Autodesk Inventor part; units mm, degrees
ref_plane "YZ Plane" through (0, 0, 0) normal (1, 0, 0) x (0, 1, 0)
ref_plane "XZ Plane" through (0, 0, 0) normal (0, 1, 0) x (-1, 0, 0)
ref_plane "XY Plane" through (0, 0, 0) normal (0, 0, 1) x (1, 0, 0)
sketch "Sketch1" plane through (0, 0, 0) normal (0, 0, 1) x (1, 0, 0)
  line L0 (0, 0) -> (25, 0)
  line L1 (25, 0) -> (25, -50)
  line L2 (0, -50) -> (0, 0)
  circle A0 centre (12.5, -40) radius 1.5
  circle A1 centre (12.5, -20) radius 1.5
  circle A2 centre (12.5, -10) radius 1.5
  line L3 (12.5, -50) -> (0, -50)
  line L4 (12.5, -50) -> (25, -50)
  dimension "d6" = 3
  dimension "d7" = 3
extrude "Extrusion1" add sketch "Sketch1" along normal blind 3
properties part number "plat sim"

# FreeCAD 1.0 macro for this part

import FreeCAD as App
import Part
import Sketcher
from FreeCAD import Vector
Q = App.Units.Quantity


def add_polygon(sketch, points):
    """Adds a closed chain of lines whose ends are joined by coincident constraints."""
    first, n = sketch.GeometryCount, len(points)
    for a, b in zip(points, points[1:] + points[:1]):
        sketch.addGeometry(Part.LineSegment(App.Vector(*a, 0), App.Vector(*b, 0)), False)
    for i in range(n):
        sketch.addConstraint(Sketcher.Constraint("Coincident", first + i, 2, first + (i + 1) % n, 1))

doc = App.newDocument("Part")
body = doc.addObject("PartDesign::Body", "Body")

# Sketch on XY plane
sketch1 = body.newObject("Sketcher::SketchObject", "Sketch")
sketch1.AttachmentSupport = (doc.getObject("XY_Plane"), [""])
sketch1.MapMode = "FlatFace"
add_polygon(sketch1, [(25, 0), (0, 0), (0, -50), (25, -50)])  # lines 0-3
sketch1.addGeometry(Part.Circle(Vector(12.5, -40, 0), Vector(0, 0, 1), 1.5), False)  # 4
sketch1.addGeometry(Part.Circle(Vector(12.5, -20, 0), Vector(0, 0, 1), 1.5), False)  # 5
sketch1.addGeometry(Part.Circle(Vector(12.5, -10, 0), Vector(0, 0, 1), 1.5), False)  # 6
sketch1.addConstraint([
    Sketcher.Constraint("Horizontal", 0),
    Sketcher.Constraint("Vertical", 1),
    Sketcher.Constraint("Horizontal", 2),
    Sketcher.Constraint("Vertical", 3),
    Sketcher.Constraint("Coincident", 0, 2, -1, 1),
    Sketcher.Constraint("Equal", 4, 5),
    Sketcher.Constraint("Equal", 5, 6),
    Sketcher.Constraint("Vertical", 4, 3, 5, 3),
    Sketcher.Constraint("Vertical", 5, 3, 6, 3),
    Sketcher.Constraint("Diameter", 4, Q("3 mm")),
    Sketcher.Constraint("DistanceX", 0, 2, 0, 1, Q("25 mm")),
    Sketcher.Constraint("DistanceY", 1, 2, 1, 1, Q("50 mm")),
    Sketcher.Constraint("DistanceY", 4, 3, -1, 1, Q("40 mm")),
    Sketcher.Constraint("DistanceY", 5, 3, -1, 1, Q("20 mm")),
    Sketcher.Constraint("DistanceY", 6, 3, -1, 1, Q("10 mm")),
    Sketcher.Constraint("DistanceX", -1, 1, 4, 3, Q("12.5 mm")),
])
pad1 = body.newObject("PartDesign::Pad", "Pad")
pad1.Profile = sketch1
pad1.Length = 3

doc.recompute()
